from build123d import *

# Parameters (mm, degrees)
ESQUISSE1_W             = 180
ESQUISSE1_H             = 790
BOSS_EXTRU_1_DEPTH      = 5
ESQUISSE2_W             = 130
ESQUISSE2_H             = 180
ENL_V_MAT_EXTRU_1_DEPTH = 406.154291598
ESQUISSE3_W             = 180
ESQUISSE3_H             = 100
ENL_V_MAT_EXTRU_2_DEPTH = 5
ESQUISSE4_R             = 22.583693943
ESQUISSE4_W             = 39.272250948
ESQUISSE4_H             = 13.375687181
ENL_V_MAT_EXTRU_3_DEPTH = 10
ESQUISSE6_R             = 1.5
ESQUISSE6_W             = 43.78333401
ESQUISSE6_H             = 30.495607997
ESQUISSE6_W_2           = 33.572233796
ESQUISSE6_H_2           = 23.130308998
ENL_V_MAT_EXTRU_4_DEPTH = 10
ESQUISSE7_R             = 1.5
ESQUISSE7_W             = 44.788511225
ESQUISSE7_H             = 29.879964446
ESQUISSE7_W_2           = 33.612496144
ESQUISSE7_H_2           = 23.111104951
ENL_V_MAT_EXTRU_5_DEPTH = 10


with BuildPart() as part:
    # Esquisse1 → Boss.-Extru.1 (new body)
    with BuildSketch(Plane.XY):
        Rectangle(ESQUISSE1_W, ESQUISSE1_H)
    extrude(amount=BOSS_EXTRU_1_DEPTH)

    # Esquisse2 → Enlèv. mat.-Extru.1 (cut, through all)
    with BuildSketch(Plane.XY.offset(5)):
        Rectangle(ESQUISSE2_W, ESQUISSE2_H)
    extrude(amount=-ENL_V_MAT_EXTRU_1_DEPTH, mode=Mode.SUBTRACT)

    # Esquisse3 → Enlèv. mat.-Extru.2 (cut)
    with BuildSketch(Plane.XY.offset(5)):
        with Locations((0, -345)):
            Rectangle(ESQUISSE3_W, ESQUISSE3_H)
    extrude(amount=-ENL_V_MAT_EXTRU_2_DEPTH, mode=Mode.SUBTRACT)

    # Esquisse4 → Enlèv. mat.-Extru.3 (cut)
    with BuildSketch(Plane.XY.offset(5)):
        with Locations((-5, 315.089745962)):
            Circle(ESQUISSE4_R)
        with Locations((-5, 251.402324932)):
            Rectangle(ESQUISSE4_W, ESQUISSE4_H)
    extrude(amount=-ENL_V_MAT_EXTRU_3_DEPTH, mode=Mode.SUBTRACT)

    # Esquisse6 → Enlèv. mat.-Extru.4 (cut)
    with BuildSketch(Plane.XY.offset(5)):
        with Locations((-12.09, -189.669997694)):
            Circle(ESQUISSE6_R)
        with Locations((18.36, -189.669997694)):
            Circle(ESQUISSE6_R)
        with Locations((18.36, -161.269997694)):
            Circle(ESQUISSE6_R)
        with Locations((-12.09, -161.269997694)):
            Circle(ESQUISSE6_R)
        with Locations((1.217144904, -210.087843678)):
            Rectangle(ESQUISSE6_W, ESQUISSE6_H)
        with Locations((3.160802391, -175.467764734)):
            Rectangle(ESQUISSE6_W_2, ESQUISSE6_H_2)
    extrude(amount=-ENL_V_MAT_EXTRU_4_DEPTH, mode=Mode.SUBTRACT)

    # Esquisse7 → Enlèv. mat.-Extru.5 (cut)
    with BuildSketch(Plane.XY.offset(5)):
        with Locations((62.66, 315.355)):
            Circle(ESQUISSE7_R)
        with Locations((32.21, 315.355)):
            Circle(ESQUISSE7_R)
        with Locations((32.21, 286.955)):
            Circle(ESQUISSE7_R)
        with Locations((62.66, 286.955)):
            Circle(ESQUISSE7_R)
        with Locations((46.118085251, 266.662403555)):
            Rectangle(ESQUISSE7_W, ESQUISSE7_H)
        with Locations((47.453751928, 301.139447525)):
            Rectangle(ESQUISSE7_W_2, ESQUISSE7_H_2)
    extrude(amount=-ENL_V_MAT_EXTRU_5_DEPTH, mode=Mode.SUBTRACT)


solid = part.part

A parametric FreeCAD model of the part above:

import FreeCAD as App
import Part
import Sketcher

doc = App.newDocument("Part")
body = doc.addObject("PartDesign::Body", "Body")

sketch1 = body.newObject("Sketcher::SketchObject", "Sketch")
sketch1.AttachmentSupport = (doc.getObject("XY_Plane"), [""])
sketch1.MapMode = "FlatFace"
sketch1.addGeometry(Part.LineSegment(App.Vector(-90, 395, 0), App.Vector(-90, -395, 0)), False)
sketch1.addGeometry(Part.LineSegment(App.Vector(-90, -395, 0), App.Vector(90, -395, 0)), False)
sketch1.addGeometry(Part.LineSegment(App.Vector(90, -395, 0), App.Vector(90, 395, 0)), False)
sketch1.addGeometry(Part.LineSegment(App.Vector(90, 395, 0), App.Vector(-90, 395, 0)), False)
sketch1.addConstraint(Sketcher.Constraint("Coincident", 0, 2, 1, 1))
sketch1.addConstraint(Sketcher.Constraint("Coincident", 1, 2, 2, 1))
sketch1.addConstraint(Sketcher.Constraint("Coincident", 2, 2, 3, 1))
sketch1.addConstraint(Sketcher.Constraint("Coincident", 3, 2, 0, 1))
sketch1.addConstraint(Sketcher.Constraint("Vertical", 0))
sketch1.addConstraint(Sketcher.Constraint("Horizontal", 1))
sketch1.addConstraint(Sketcher.Constraint("Vertical", 2))
sketch1.addConstraint(Sketcher.Constraint("Horizontal", 3))
sketch1.addConstraint(Sketcher.Constraint("Symmetric", 0, 2, 2, 2, -1, 1))
sketch1.addConstraint(Sketcher.Constraint("DistanceX", 1, 1, 1, 2, 180.0))
sketch1.addConstraint(Sketcher.Constraint("DistanceY", 0, 2, 0, 1, 790.0))
pad1 = body.newObject("PartDesign::Pad", "Pad")
pad1.Profile = sketch1
pad1.Length = 5

sketch2 = body.newObject("Sketcher::SketchObject", "Sketch001")
sketch2.AttachmentSupport = (doc.getObject("XY_Plane"), [""])
sketch2.MapMode = "FlatFace"
sketch2.AttachmentOffset = App.Placement(App.Vector(0, 0, 5), App.Rotation())
sketch2.addGeometry(Part.LineSegment(App.Vector(-65, 90, 0), App.Vector(-65, -90, 0)), False)
sketch2.addGeometry(Part.LineSegment(App.Vector(-65, -90, 0), App.Vector(65, -90, 0)), False)
sketch2.addGeometry(Part.LineSegment(App.Vector(65, -90, 0), App.Vector(65, 90, 0)), False)
sketch2.addGeometry(Part.LineSegment(App.Vector(65, 90, 0), App.Vector(-65, 90, 0)), False)
sketch2.addConstraint(Sketcher.Constraint("Coincident", 0, 2, 1, 1))
sketch2.addConstraint(Sketcher.Constraint("Coincident", 1, 2, 2, 1))
sketch2.addConstraint(Sketcher.Constraint("Coincident", 2, 2, 3, 1))
sketch2.addConstraint(Sketcher.Constraint("Coincident", 3, 2, 0, 1))
sketch2.addConstraint(Sketcher.Constraint("Vertical", 0))
sketch2.addConstraint(Sketcher.Constraint("Horizontal", 1))
sketch2.addConstraint(Sketcher.Constraint("Vertical", 2))
sketch2.addConstraint(Sketcher.Constraint("Horizontal", 3))
sketch2.addConstraint(Sketcher.Constraint("Symmetric", 0, 2, 2, 2, -1, 1))
sketch2.addConstraint(Sketcher.Constraint("DistanceX", 1, 1, 1, 2, 130.0))
sketch2.addConstraint(Sketcher.Constraint("DistanceY", 0, 2, 0, 1, 180.0))
pocket1 = body.newObject("PartDesign::Pocket", "Pocket")
pocket1.Profile = sketch2
pocket1.Type = "ThroughAll"

sketch3 = body.newObject("Sketcher::SketchObject", "Sketch002")
sketch3.AttachmentSupport = (doc.getObject("XY_Plane"), [""])
sketch3.MapMode = "FlatFace"
sketch3.AttachmentOffset = App.Placement(App.Vector(0, 0, 5), App.Rotation())
sketch3.addGeometry(Part.LineSegment(App.Vector(-90, -295, 0), App.Vector(-90, -395, 0)), False)
sketch3.addGeometry(Part.LineSegment(App.Vector(-90, -395, 0), App.Vector(90, -395, 0)), False)
sketch3.addGeometry(Part.LineSegment(App.Vector(90, -395, 0), App.Vector(90, -295, 0)), False)
sketch3.addGeometry(Part.LineSegment(App.Vector(90, -295, 0), App.Vector(-90, -295, 0)), False)
sketch3.addConstraint(Sketcher.Constraint("Coincident", 0, 2, 1, 1))
sketch3.addConstraint(Sketcher.Constraint("Coincident", 1, 2, 2, 1))
sketch3.addConstraint(Sketcher.Constraint("Coincident", 2, 2, 3, 1))
sketch3.addConstraint(Sketcher.Constraint("Coincident", 3, 2, 0, 1))
sketch3.addConstraint(Sketcher.Constraint("Vertical", 0))
sketch3.addConstraint(Sketcher.Constraint("Horizontal", 1))
sketch3.addConstraint(Sketcher.Constraint("Vertical", 2))
sketch3.addConstraint(Sketcher.Constraint("Horizontal", 3))
sketch3.addConstraint(Sketcher.Constraint("DistanceX", 1, 1, 1, 2, 180.0))
sketch3.addConstraint(Sketcher.Constraint("DistanceY", 0, 2, 0, 1, 100.0))
sketch3.addConstraint(Sketcher.Constraint("DistanceX", 0, 2, -1, 1, 90.0))
sketch3.addConstraint(Sketcher.Constraint("DistanceY", 0, 2, -1, 1, 395.0))
pocket2 = body.newObject("PartDesign::Pocket", "Pocket001")
pocket2.Profile = sketch3
pocket2.Length = 5

sketch4 = body.newObject("Sketcher::SketchObject", "Sketch003")
sketch4.AttachmentSupport = (doc.getObject("XY_Plane"), [""])
sketch4.MapMode = "FlatFace"
sketch4.AttachmentOffset = App.Placement(App.Vector(0, 0, 5), App.Rotation())
sketch4.addGeometry(Part.Circle(App.Vector(-5, 315.089746, 0), App.Vector(0, 0, 1), 22.583694), False)
sketch4.addGeometry(Part.LineSegment(App.Vector(-24.636125, 258.090169, 0), App.Vector(-24.636125, 244.714481, 0)), False)
sketch4.addGeometry(Part.LineSegment(App.Vector(-24.636125, 244.714481, 0), App.Vector(14.636125, 244.714481, 0)), False)
sketch4.addGeometry(Part.LineSegment(App.Vector(14.636125, 244.714481, 0), App.Vector(14.636125, 258.090169, 0)), False)
sketch4.addGeometry(Part.LineSegment(App.Vector(14.636125, 258.090169, 0), App.Vector(-24.636125, 258.090169, 0)), False)
sketch4.addConstraint(Sketcher.Constraint("Coincident", 1, 2, 2, 1))
sketch4.addConstraint(Sketcher.Constraint("Coincident", 2, 2, 3, 1))
sketch4.addConstraint(Sketcher.Constraint("Coincident", 3, 2, 4, 1))
sketch4.addConstraint(Sketcher.Constraint("Coincident", 4, 2, 1, 1))
sketch4.addConstraint(Sketcher.Constraint("Vertical", 1))
sketch4.addConstraint(Sketcher.Constraint("Horizontal", 2))
sketch4.addConstraint(Sketcher.Constraint("Vertical", 3))
sketch4.addConstraint(Sketcher.Constraint("Horizontal", 4))
sketch4.addConstraint(Sketcher.Constraint("DistanceX", 0, 3, -1, 1, 5.0))
sketch4.addConstraint(Sketcher.Constraint("Diameter", 0, 45.167388))
sketch4.addConstraint(Sketcher.Constraint("DistanceX", 2, 1, 2, 2, 39.272251))
sketch4.addConstraint(Sketcher.Constraint("DistanceY", 1, 2, 1, 1, 13.375687))
sketch4.addConstraint(Sketcher.Constraint("DistanceY", -1, 1, 1, 2, 244.714481))
sketch4.addConstraint(Sketcher.Constraint("DistanceY", -1, 1, 0, 3, 315.089746))
sketch4.addConstraint(Sketcher.Constraint("DistanceX", 1, 2, -1, 1, 24.636125))
pocket3 = body.newObject("PartDesign::Pocket", "Pocket002")
pocket3.Profile = sketch4
pocket3.Length = 10

sketch5 = body.newObject("Sketcher::SketchObject", "Sketch004")
sketch5.AttachmentSupport = (doc.getObject("XY_Plane"), [""])
sketch5.MapMode = "FlatFace"
sketch5.AttachmentOffset = App.Placement(App.Vector(0, 0, 5), App.Rotation())
sketch5.addGeometry(Part.Circle(App.Vector(-12.09, -189.669998, 0), App.Vector(0, 0, 1), 1.5), False)
sketch5.addGeometry(Part.Circle(App.Vector(18.36, -189.669998, 0), App.Vector(0, 0, 1), 1.5), False)
sketch5.addGeometry(Part.Circle(App.Vector(18.36, -161.269998, 0), App.Vector(0, 0, 1), 1.5), False)
sketch5.addGeometry(Part.Circle(App.Vector(-12.09, -161.269998, 0), App.Vector(0, 0, 1), 1.5), False)
sketch5.addGeometry(Part.LineSegment(App.Vector(-20.674522, -194.84004, 0), App.Vector(-20.674522, -225.335648, 0)), False)
sketch5.addGeometry(Part.LineSegment(App.Vector(-20.674522, -225.335648, 0), App.Vector(23.108812, -225.335648, 0)), False)
sketch5.addGeometry(Part.LineSegment(App.Vector(23.108812, -225.335648, 0), App.Vector(23.108812, -194.84004, 0)), False)
sketch5.addGeometry(Part.LineSegment(App.Vector(23.108812, -194.84004, 0), App.Vector(-20.674522, -194.84004, 0)), False)
sketch5.addGeometry(Part.LineSegment(App.Vector(-13.625315, -163.90261, 0), App.Vector(-13.625315, -187.032919, 0)), False)
sketch5.addGeometry(Part.LineSegment(App.Vector(-13.625315, -187.032919, 0), App.Vector(19.946919, -187.032919, 0)), False)
sketch5.addGeometry(Part.LineSegment(App.Vector(19.946919, -187.032919, 0), App.Vector(19.946919, -163.90261, 0)), False)
sketch5.addGeometry(Part.LineSegment(App.Vector(19.946919, -163.90261, 0), App.Vector(-13.625315, -163.90261, 0)), False)
sketch5.addConstraint(Sketcher.Constraint("Coincident", 4, 2, 5, 1))
sketch5.addConstraint(Sketcher.Constraint("Coincident", 5, 2, 6, 1))
sketch5.addConstraint(Sketcher.Constraint("Coincident", 6, 2, 7, 1))
sketch5.addConstraint(Sketcher.Constraint("Coincident", 7, 2, 4, 1))
sketch5.addConstraint(Sketcher.Constraint("Coincident", 8, 2, 9, 1))
sketch5.addConstraint(Sketcher.Constraint("Coincident", 9, 2, 10, 1))
sketch5.addConstraint(Sketcher.Constraint("Coincident", 10, 2, 11, 1))
sketch5.addConstraint(Sketcher.Constraint("Coincident", 11, 2, 8, 1))
sketch5.addConstraint(Sketcher.Constraint("Vertical", 4))
sketch5.addConstraint(Sketcher.Constraint("Horizontal", 5))
sketch5.addConstraint(Sketcher.Constraint("Vertical", 6))
sketch5.addConstraint(Sketcher.Constraint("Horizontal", 7))
sketch5.addConstraint(Sketcher.Constraint("Vertical", 8))
sketch5.addConstraint(Sketcher.Constraint("Horizontal", 9))
sketch5.addConstraint(Sketcher.Constraint("Vertical", 10))
sketch5.addConstraint(Sketcher.Constraint("Horizontal", 11))
sketch5.addConstraint(Sketcher.Constraint("Equal", 0, 1))
sketch5.addConstraint(Sketcher.Constraint("Equal", 1, 2))
sketch5.addConstraint(Sketcher.Constraint("Equal", 2, 3))
sketch5.addConstraint(Sketcher.Constraint("Horizontal", 0, 3, 1, 3))
sketch5.addConstraint(Sketcher.Constraint("Horizontal", 2, 3, 3, 3))
sketch5.addConstraint(Sketcher.Constraint("Vertical", 1, 3, 2, 3))
sketch5.addConstraint(Sketcher.Constraint("Vertical", 0, 3, 3, 3))
sketch5.addConstraint(Sketcher.Constraint("Diameter", 0, 3.0))
sketch5.addConstraint(Sketcher.Constraint("DistanceY", 1, 3, 2, 3, 28.4))
sketch5.addConstraint(Sketcher.Constraint("DistanceX", 0, 3, -1, 1, 12.09))
sketch5.addConstraint(Sketcher.Constraint("DistanceX", -1, 1, 1, 3, 18.36))
sketch5.addConstraint(Sketcher.Constraint("DistanceY", 8, 2, 8, 1, 23.130309))
sketch5.addConstraint(Sketcher.Constraint("DistanceX", 5, 1, 5, 2, 43.783334))
sketch5.addConstraint(Sketcher.Constraint("DistanceX", 9, 1, 9, 2, 33.572234))
sketch5.addConstraint(Sketcher.Constraint("DistanceY", 4, 2, 4, 1, 30.495608))
sketch5.addConstraint(Sketcher.Constraint("DistanceX", -1, 1, 5, 2, 23.108812))
sketch5.addConstraint(Sketcher.Constraint("DistanceY", 6, 2, -1, 1, 194.84004))
sketch5.addConstraint(Sketcher.Constraint("DistanceY", 8, 2, -1, 1, 187.032919))
sketch5.addConstraint(Sketcher.Constraint("DistanceX", -1, 1, 9, 2, 19.946919))
sketch5.addConstraint(Sketcher.Constraint("DistanceY", 4, 2, 0, 3, 35.66565))
pocket4 = body.newObject("PartDesign::Pocket", "Pocket003")
pocket4.Profile = sketch5
pocket4.Length = 10

sketch6 = body.newObject("Sketcher::SketchObject", "Sketch005")
sketch6.AttachmentSupport = (doc.getObject("XY_Plane"), [""])
sketch6.MapMode = "FlatFace"
sketch6.AttachmentOffset = App.Placement(App.Vector(0, 0, 5), App.Rotation())
sketch6.addGeometry(Part.Circle(App.Vector(62.66, 315.355, 0), App.Vector(0, 0, 1), 1.5), False)
sketch6.addGeometry(Part.Circle(App.Vector(32.21, 315.355, 0), App.Vector(0, 0, 1), 1.5), False)
sketch6.addGeometry(Part.Circle(App.Vector(32.21, 286.955, 0), App.Vector(0, 0, 1), 1.5), False)
sketch6.addGeometry(Part.Circle(App.Vector(62.66, 286.955, 0), App.Vector(0, 0, 1), 1.5), False)
sketch6.addGeometry(Part.LineSegment(App.Vector(23.72383, 281.602386, 0), App.Vector(23.72383, 251.722421, 0)), False)
sketch6.addGeometry(Part.LineSegment(App.Vector(23.72383, 251.722421, 0), App.Vector(68.512341, 251.722421, 0)), False)
sketch6.addGeometry(Part.LineSegment(App.Vector(68.512341, 251.722421, 0), App.Vector(68.512341, 281.602386, 0)), False)
sketch6.addGeometry(Part.LineSegment(App.Vector(68.512341, 281.602386, 0), App.Vector(23.72383, 281.602386, 0)), False)
sketch6.addGeometry(Part.LineSegment(App.Vector(30.647504, 312.695, 0), App.Vector(30.647504, 289.583895, 0)), False)
sketch6.addGeometry(Part.LineSegment(App.Vector(30.647504, 289.583895, 0), App.Vector(64.26, 289.583895, 0)), False)
sketch6.addGeometry(Part.LineSegment(App.Vector(64.26, 289.583895, 0), App.Vector(64.26, 312.695, 0)), False)
sketch6.addGeometry(Part.LineSegment(App.Vector(64.26, 312.695, 0), App.Vector(30.647504, 312.695, 0)), False)
sketch6.addConstraint(Sketcher.Constraint("Coincident", 4, 2, 5, 1))
sketch6.addConstraint(Sketcher.Constraint("Coincident", 5, 2, 6, 1))
sketch6.addConstraint(Sketcher.Constraint("Coincident", 6, 2, 7, 1))
sketch6.addConstraint(Sketcher.Constraint("Coincident", 7, 2, 4, 1))
sketch6.addConstraint(Sketcher.Constraint("Coincident", 8, 2, 9, 1))
sketch6.addConstraint(Sketcher.Constraint("Coincident", 9, 2, 10, 1))
sketch6.addConstraint(Sketcher.Constraint("Coincident", 10, 2, 11, 1))
sketch6.addConstraint(Sketcher.Constraint("Coincident", 11, 2, 8, 1))
sketch6.addConstraint(Sketcher.Constraint("Vertical", 4))
sketch6.addConstraint(Sketcher.Constraint("Horizontal", 5))
sketch6.addConstraint(Sketcher.Constraint("Vertical", 6))
sketch6.addConstraint(Sketcher.Constraint("Horizontal", 7))
sketch6.addConstraint(Sketcher.Constraint("Vertical", 8))
sketch6.addConstraint(Sketcher.Constraint("Horizontal", 9))
sketch6.addConstraint(Sketcher.Constraint("Vertical", 10))
sketch6.addConstraint(Sketcher.Constraint("Horizontal", 11))
sketch6.addConstraint(Sketcher.Constraint("Equal", 0, 1))
sketch6.addConstraint(Sketcher.Constraint("Equal", 1, 2))
sketch6.addConstraint(Sketcher.Constraint("Equal", 2, 3))
sketch6.addConstraint(Sketcher.Constraint("Horizontal", 0, 3, 1, 3))
sketch6.addConstraint(Sketcher.Constraint("Horizontal", 2, 3, 3, 3))
sketch6.addConstraint(Sketcher.Constraint("Vertical", 1, 3, 2, 3))
sketch6.addConstraint(Sketcher.Constraint("Vertical", 0, 3, 3, 3))
sketch6.addConstraint(Sketcher.Constraint("Diameter", 0, 3.0))
sketch6.addConstraint(Sketcher.Constraint("DistanceY", 2, 3, 1, 3, 28.4))
sketch6.addConstraint(Sketcher.Constraint("DistanceX", 3, 3, 9, 2, 1.6))
sketch6.addConstraint(Sketcher.Constraint("DistanceX", -1, 1, 0, 3, 62.66))
sketch6.addConstraint(Sketcher.Constraint("DistanceX", -1, 1, 1, 3, 32.21))
sketch6.addConstraint(Sketcher.Constraint("DistanceY", 10, 2, 0, 3, 2.66))
sketch6.addConstraint(Sketcher.Constraint("DistanceY", -1, 1, 0, 3, 315.355))
sketch6.addConstraint(Sketcher.Constraint("DistanceX", 5, 1, 5, 2, 44.788511))
sketch6.addConstraint(Sketcher.Constraint("DistanceX", 9, 1, 9, 2, 33.612496))
sketch6.addConstraint(Sketcher.Constraint("DistanceY", 4, 2, 4, 1, 29.879964))
sketch6.addConstraint(Sketcher.Constraint("DistanceY", 8, 2, 8, 1, 23.111105))
sketch6.addConstraint(Sketcher.Constraint("DistanceX", -1, 1, 4, 2, 23.72383))
sketch6.addConstraint(Sketcher.Constraint("DistanceY", -1, 1, 4, 2, 251.722421))
pocket5 = body.newObject("PartDesign::Pocket", "Pocket004")
pocket5.Profile = sketch6
pocket5.Length = 10

doc.recompute()
